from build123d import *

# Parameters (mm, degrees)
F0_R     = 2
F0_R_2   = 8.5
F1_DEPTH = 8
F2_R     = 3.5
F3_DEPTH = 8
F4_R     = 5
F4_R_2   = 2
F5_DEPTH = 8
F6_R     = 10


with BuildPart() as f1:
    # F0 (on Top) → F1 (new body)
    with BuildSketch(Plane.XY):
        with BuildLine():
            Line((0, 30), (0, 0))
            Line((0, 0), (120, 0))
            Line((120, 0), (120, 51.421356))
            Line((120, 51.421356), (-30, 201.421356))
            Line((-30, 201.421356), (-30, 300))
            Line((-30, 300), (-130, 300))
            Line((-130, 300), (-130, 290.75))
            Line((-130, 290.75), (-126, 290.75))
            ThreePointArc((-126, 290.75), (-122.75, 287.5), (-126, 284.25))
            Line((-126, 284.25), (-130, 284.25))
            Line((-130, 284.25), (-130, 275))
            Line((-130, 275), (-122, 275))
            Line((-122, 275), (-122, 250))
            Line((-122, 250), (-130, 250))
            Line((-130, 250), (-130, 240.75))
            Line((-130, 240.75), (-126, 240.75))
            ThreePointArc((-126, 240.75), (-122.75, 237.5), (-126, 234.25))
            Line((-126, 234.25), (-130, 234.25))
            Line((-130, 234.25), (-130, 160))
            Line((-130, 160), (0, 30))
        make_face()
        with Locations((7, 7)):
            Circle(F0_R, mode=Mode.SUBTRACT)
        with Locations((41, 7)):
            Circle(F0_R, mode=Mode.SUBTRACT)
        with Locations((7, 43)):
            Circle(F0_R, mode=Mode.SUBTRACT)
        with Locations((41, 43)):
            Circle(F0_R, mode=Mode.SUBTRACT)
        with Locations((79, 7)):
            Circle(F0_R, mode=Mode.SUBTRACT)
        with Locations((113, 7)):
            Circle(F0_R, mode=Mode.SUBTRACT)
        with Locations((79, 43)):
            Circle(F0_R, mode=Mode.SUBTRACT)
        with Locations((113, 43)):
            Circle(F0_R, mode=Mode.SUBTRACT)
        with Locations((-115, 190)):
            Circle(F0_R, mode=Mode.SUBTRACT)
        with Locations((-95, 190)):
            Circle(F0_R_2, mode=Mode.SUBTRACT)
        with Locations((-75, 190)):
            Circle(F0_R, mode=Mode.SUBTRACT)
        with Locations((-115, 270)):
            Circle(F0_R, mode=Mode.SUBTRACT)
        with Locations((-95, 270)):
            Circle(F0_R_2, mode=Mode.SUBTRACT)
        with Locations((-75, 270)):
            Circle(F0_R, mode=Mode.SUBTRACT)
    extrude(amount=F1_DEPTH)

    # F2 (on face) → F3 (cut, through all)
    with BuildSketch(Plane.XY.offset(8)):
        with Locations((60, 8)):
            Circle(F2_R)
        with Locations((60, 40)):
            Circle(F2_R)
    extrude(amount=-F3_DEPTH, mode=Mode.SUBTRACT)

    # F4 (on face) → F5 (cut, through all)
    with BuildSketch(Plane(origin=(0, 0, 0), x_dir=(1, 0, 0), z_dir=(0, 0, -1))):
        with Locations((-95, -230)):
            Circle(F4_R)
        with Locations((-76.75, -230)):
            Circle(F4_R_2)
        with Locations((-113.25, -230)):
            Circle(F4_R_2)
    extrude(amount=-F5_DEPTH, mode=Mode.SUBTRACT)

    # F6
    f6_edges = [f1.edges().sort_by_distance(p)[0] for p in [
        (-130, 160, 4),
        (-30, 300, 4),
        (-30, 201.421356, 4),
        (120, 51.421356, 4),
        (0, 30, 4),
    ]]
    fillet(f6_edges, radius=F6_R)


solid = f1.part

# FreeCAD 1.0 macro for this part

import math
import FreeCAD as App
import Part
import Sketcher
Q = App.Units.Quantity


def edges_at(feature, points):
    """Names of the edges that pass closest to the given points."""
    edges = feature.Shape.Edges
    near = lambda p: min(range(len(edges)), key=lambda i: edges[i].distToShape(Part.Vertex(*p))[0])
    return sorted({f"Edge{near(p) + 1}" for p in points})

doc = App.newDocument("Part")
params = doc.addObject("Spreadsheet::Sheet", "Params")
for row, (alias, value) in enumerate([
    ("sketch1_diameter", "4 mm"),
    ("sketch1_diameter2", "17 mm"),
    ("sketch1_width", "120 mm"),
    ("sketch1_width2", "100 mm"),
    ("sketch1_width3", "4 mm"),
    ("pad1_length", "8 mm"),
    ("sketch2_diameter", "7 mm"),
    ("sketch3_diameter", "10 mm"),
    ("sketch3_diameter2", "4 mm"),
    ("fillet_radius", "10 mm"),
], start=1):
    params.set(f"A{row}", alias)
    params.set(f"B{row}", "=" + value)
    params.setAlias(f"B{row}", alias)

body = doc.addObject("PartDesign::Body", "Body")

# Sketch on XY plane
sketch1 = body.newObject("Sketcher::SketchObject", "Sketch")
sketch1.AttachmentSupport = (doc.getObject("XY_Plane"), [""])
sketch1.MapMode = "FlatFace"
sketch1.addGeometry([
    Part.LineSegment(App.Vector(0, 30, 0), App.Vector(0, 0, 0)),  # 0
    Part.LineSegment(App.Vector(0, 0, 0), App.Vector(120, 0, 0)),  # 1
    Part.LineSegment(App.Vector(120, 0, 0), App.Vector(120, 51.4, 0)),  # 2
    Part.LineSegment(App.Vector(120, 51.4, 0), App.Vector(-30, 201.4, 0)),  # 3
    Part.LineSegment(App.Vector(-30, 201.4, 0), App.Vector(-30, 300, 0)),  # 4
    Part.LineSegment(App.Vector(-30, 300, 0), App.Vector(-130, 300, 0)),  # 5
    Part.LineSegment(App.Vector(-130, 300, 0), App.Vector(-130, 290.8, 0)),  # 6
    Part.LineSegment(App.Vector(-130, 290.8, 0), App.Vector(-126, 290.8, 0)),  # 7
    Part.ArcOfCircle(Part.Circle(App.Vector(-126, 287.5, 0), App.Vector(0, 0, 1), 3.2), math.radians(-90), math.radians(90)),  # 8
    Part.LineSegment(App.Vector(-126, 284.2, 0), App.Vector(-130, 284.2, 0)),  # 9
    Part.LineSegment(App.Vector(-130, 284.2, 0), App.Vector(-130, 275, 0)),  # 10
    Part.LineSegment(App.Vector(-130, 275, 0), App.Vector(-122, 275, 0)),  # 11
    Part.LineSegment(App.Vector(-122, 275, 0), App.Vector(-122, 250, 0)),  # 12
    Part.LineSegment(App.Vector(-122, 250, 0), App.Vector(-130, 250, 0)),  # 13
    Part.LineSegment(App.Vector(-130, 250, 0), App.Vector(-130, 240.8, 0)),  # 14
    Part.LineSegment(App.Vector(-130, 240.8, 0), App.Vector(-126, 240.8, 0)),  # 15
    Part.ArcOfCircle(Part.Circle(App.Vector(-126, 237.5, 0), App.Vector(0, 0, 1), 3.2), math.radians(-90), math.radians(90)),  # 16
    Part.LineSegment(App.Vector(-126, 234.2, 0), App.Vector(-130, 234.2, 0)),  # 17
    Part.LineSegment(App.Vector(-130, 234.2, 0), App.Vector(-130, 160, 0)),  # 18
    Part.LineSegment(App.Vector(-130, 160, 0), App.Vector(0, 30, 0)),  # 19
    Part.Circle(App.Vector(7, 7, 0), App.Vector(0, 0, 1), 2),  # 20
    Part.Circle(App.Vector(41, 7, 0), App.Vector(0, 0, 1), 2),  # 21
    Part.Circle(App.Vector(7, 43, 0), App.Vector(0, 0, 1), 2),  # 22
    Part.Circle(App.Vector(41, 43, 0), App.Vector(0, 0, 1), 2),  # 23
    Part.Circle(App.Vector(79, 7, 0), App.Vector(0, 0, 1), 2),  # 24
    Part.Circle(App.Vector(113, 7, 0), App.Vector(0, 0, 1), 2),  # 25
    Part.Circle(App.Vector(79, 43, 0), App.Vector(0, 0, 1), 2),  # 26
    Part.Circle(App.Vector(113, 43, 0), App.Vector(0, 0, 1), 2),  # 27
    Part.Circle(App.Vector(-115, 190, 0), App.Vector(0, 0, 1), 2),  # 28
    Part.Circle(App.Vector(-95, 190, 0), App.Vector(0, 0, 1), 8.5),  # 29
    Part.Circle(App.Vector(-75, 190, 0), App.Vector(0, 0, 1), 2),  # 30
    Part.Circle(App.Vector(-115, 270, 0), App.Vector(0, 0, 1), 2),  # 31
    Part.Circle(App.Vector(-95, 270, 0), App.Vector(0, 0, 1), 8.5),  # 32
    Part.Circle(App.Vector(-75, 270, 0), App.Vector(0, 0, 1), 2),  # 33
], False)
sketch1.addConstraint([
    Sketcher.Constraint("Coincident", 0, 2, 1, 1),
    Sketcher.Constraint("Coincident", 1, 2, 2, 1),
    Sketcher.Constraint("Coincident", 2, 2, 3, 1),
    Sketcher.Constraint("Coincident", 3, 2, 4, 1),
    Sketcher.Constraint("Coincident", 4, 2, 5, 1),
    Sketcher.Constraint("Coincident", 5, 2, 6, 1),
    Sketcher.Constraint("Coincident", 6, 2, 7, 1),
    Sketcher.Constraint("Tangent", 7, 2, 8, 2),
    Sketcher.Constraint("Tangent", 8, 1, 9, 1),
    Sketcher.Constraint("Coincident", 9, 2, 10, 1),
    Sketcher.Constraint("Coincident", 10, 2, 11, 1),
    Sketcher.Constraint("Coincident", 11, 2, 12, 1),
    Sketcher.Constraint("Coincident", 12, 2, 13, 1),
    Sketcher.Constraint("Coincident", 13, 2, 14, 1),
    Sketcher.Constraint("Coincident", 14, 2, 15, 1),
    Sketcher.Constraint("Tangent", 15, 2, 16, 2),
    Sketcher.Constraint("Tangent", 16, 1, 17, 1),
    Sketcher.Constraint("Coincident", 17, 2, 18, 1),
    Sketcher.Constraint("Coincident", 18, 2, 19, 1),
    Sketcher.Constraint("Coincident", 19, 2, 0, 1),
    Sketcher.Constraint("Vertical", 0),
    Sketcher.Constraint("Horizontal", 1),
    Sketcher.Constraint("Vertical", 2),
    Sketcher.Constraint("Vertical", 4),
    Sketcher.Constraint("Horizontal", 5),
    Sketcher.Constraint("Vertical", 6),
    Sketcher.Constraint("Horizontal", 7),
    Sketcher.Constraint("Horizontal", 9),
    Sketcher.Constraint("Vertical", 10),
    Sketcher.Constraint("Horizontal", 11),
    Sketcher.Constraint("Vertical", 12),
    Sketcher.Constraint("Horizontal", 13),
    Sketcher.Constraint("Vertical", 14),
    Sketcher.Constraint("Horizontal", 15),
    Sketcher.Constraint("Horizontal", 17),
    Sketcher.Constraint("Vertical", 18),
    Sketcher.Constraint("Coincident", 0, 2, -1, 1),
    Sketcher.Constraint("Equal", 8, 16),
    Sketcher.Constraint("Equal", 20, 21),
    Sketcher.Constraint("Equal", 21, 22),
    Sketcher.Constraint("Equal", 22, 23),
    Sketcher.Constraint("Equal", 23, 24),
    Sketcher.Constraint("Equal", 24, 25),
    Sketcher.Constraint("Equal", 25, 26),
    Sketcher.Constraint("Equal", 26, 27),
    Sketcher.Constraint("Equal", 27, 28),
    Sketcher.Constraint("Equal", 28, 30),
    Sketcher.Constraint("Equal", 30, 31),
    Sketcher.Constraint("Equal", 29, 32),
    Sketcher.Constraint("Equal", 31, 33),
    Sketcher.Constraint("Parallel", 3, 19),
    Sketcher.Constraint("Horizontal", 20, 3, 21, 3),
    Sketcher.Constraint("Horizontal", 22, 3, 23, 3),
    Sketcher.Constraint("Horizontal", 21, 3, 24, 3),
    Sketcher.Constraint("Horizontal", 24, 3, 25, 3),
    Sketcher.Constraint("Horizontal", 23, 3, 26, 3),
    Sketcher.Constraint("Horizontal", 26, 3, 27, 3),
    Sketcher.Constraint("Horizontal", 28, 3, 29, 3),
    Sketcher.Constraint("Horizontal", 29, 3, 30, 3),
    Sketcher.Constraint("Horizontal", 31, 3, 32, 3),
    Sketcher.Constraint("Horizontal", 32, 3, 33, 3),
    Sketcher.Constraint("Vertical", 8, 3, 16, 3),
    Sketcher.Constraint("Vertical", 20, 3, 22, 3),
    Sketcher.Constraint("Vertical", 21, 3, 23, 3),
    Sketcher.Constraint("Vertical", 24, 3, 26, 3),
    Sketcher.Constraint("Vertical", 25, 3, 27, 3),
    Sketcher.Constraint("Vertical", 28, 3, 31, 3),
    Sketcher.Constraint("Vertical", 29, 3, 32, 3),
    Sketcher.Constraint("Vertical", 30, 3, 33, 3),
    Sketcher.Constraint("Vertical", 6, 2, 9, 2),
    Sketcher.Constraint("Vertical", 10, 2, 13, 2),
    Sketcher.Constraint("Vertical", 14, 2, 17, 2),
    Sketcher.Constraint("Equal", 6, 10),
    Sketcher.Constraint("Equal", 10, 14),
    Sketcher.Constraint("Diameter", 20, 4.0),
    Sketcher.Constraint("Diameter", 29, 17.0),
    Sketcher.Constraint("DistanceX", 1, 1, 1, 2, 120.0),
    Sketcher.Constraint("DistanceX", 5, 2, 5, 1, 100.0),
    Sketcher.Constraint("DistanceX", 7, 1, 7, 2, 4.0),
    Sketcher.Constraint("DistanceX", 11, 1, 11, 2, 8.0),
    Sketcher.Constraint("DistanceY", 0, 2, 0, 1, 30.0),
    Sketcher.Constraint("DistanceY", 12, 2, 12, 1, 25.0),
    Sketcher.Constraint("Angle", 3, Q("135 deg")),
    Sketcher.Constraint("Radius", 8, 3.25),
    Sketcher.Constraint("DistanceX", 8, 3, -1, 1, 126.0),
    Sketcher.Constraint("DistanceX", -1, 1, 20, 3, 7.0),
    Sketcher.Constraint("DistanceY", -1, 1, 20, 3, 7.0),
    Sketcher.Constraint("DistanceX", -1, 1, 21, 3, 41.0),
    Sketcher.Constraint("DistanceY", -1, 1, 22, 3, 43.0),
    Sketcher.Constraint("DistanceX", -1, 1, 24, 3, 79.0),
    Sketcher.Constraint("DistanceX", -1, 1, 25, 3, 113.0),
    Sketcher.Constraint("DistanceX", 28, 3, -1, 1, 115.0),
    Sketcher.Constraint("DistanceY", -1, 1, 28, 3, 190.0),
    Sketcher.Constraint("DistanceX", 29, 3, -1, 1, 95.0),
    Sketcher.Constraint("DistanceX", 30, 3, -1, 1, 75.0),
    Sketcher.Constraint("DistanceY", -1, 1, 31, 3, 270.0),
    Sketcher.Constraint("DistanceY", -1, 1, 4, 2, 300.0),
    Sketcher.Constraint("DistanceY", -1, 1, 10, 2, 275.0),
    Sketcher.Constraint("DistanceY", 2, 1, 2, 2, 51.421356),
])
sketch1.setExpression("Constraints[74]", "Params.sketch1_diameter")
sketch1.setExpression("Constraints[75]", "Params.sketch1_diameter2")
sketch1.setExpression("Constraints[76]", "Params.sketch1_width")
sketch1.setExpression("Constraints[77]", "Params.sketch1_width2")
sketch1.setExpression("Constraints[78]", "Params.sketch1_width3")
pad1 = body.newObject("PartDesign::Pad", "Pad")
pad1.Profile = sketch1
pad1.setExpression("Length", "Params.pad1_length")

# Sketch on XY plane
sketch2 = body.newObject("Sketcher::SketchObject", "Sketch001")
sketch2.AttachmentSupport = (doc.getObject("XY_Plane"), [""])
sketch2.MapMode = "FlatFace"
sketch2.AttachmentOffset = App.Placement(App.Vector(0, 0, 8), App.Rotation())
sketch2.addGeometry([
    Part.Circle(App.Vector(60, 8, 0), App.Vector(0, 0, 1), 3.5),
    Part.Circle(App.Vector(60, 40, 0), App.Vector(0, 0, 1), 3.5),
], False)
sketch2.addConstraint([
    Sketcher.Constraint("Equal", 0, 1),
    Sketcher.Constraint("Vertical", 0, 3, 1, 3),
    Sketcher.Constraint("Diameter", 0, 7.0),
    Sketcher.Constraint("DistanceX", -1, 1, 0, 3, 60.0),
    Sketcher.Constraint("DistanceY", -1, 1, 0, 3, 8.0),
    Sketcher.Constraint("DistanceY", -1, 1, 1, 3, 40.0),
])
sketch2.setExpression("Constraints[2]", "Params.sketch2_diameter")
pocket1 = body.newObject("PartDesign::Pocket", "Pocket")
pocket1.Profile = sketch2
pocket1.Type = "ThroughAll"

# Sketch on XY plane
sketch3 = body.newObject("Sketcher::SketchObject", "Sketch002")
sketch3.AttachmentSupport = (doc.getObject("XY_Plane"), [""])
sketch3.MapMode = "FlatFace"
sketch3.addGeometry([
    Part.Circle(App.Vector(-95, 230, 0), App.Vector(0, 0, 1), 5),
    Part.Circle(App.Vector(-76.8, 230, 0), App.Vector(0, 0, 1), 2),
    Part.Circle(App.Vector(-113.2, 230, 0), App.Vector(0, 0, 1), 2),
], False)
sketch3.addConstraint([
    Sketcher.Constraint("Equal", 1, 2),
    Sketcher.Constraint("Horizontal", 0, 3, 1, 3),
    Sketcher.Constraint("Horizontal", 1, 3, 2, 3),
    Sketcher.Constraint("Diameter", 0, 10.0),
    Sketcher.Constraint("Diameter", 1, 4.0),
    Sketcher.Constraint("DistanceX", 0, 3, -1, 1, 95.0),
    Sketcher.Constraint("DistanceY", -1, 1, 0, 3, 230.0),
    Sketcher.Constraint("DistanceX", 2, 3, 1, 3, 36.5),
    Sketcher.Constraint("DistanceX", 1, 3, -1, 1, 76.75),
])
sketch3.setExpression("Constraints[3]", "Params.sketch3_diameter")
sketch3.setExpression("Constraints[4]", "Params.sketch3_diameter2")
pocket2 = body.newObject("PartDesign::Pocket", "Pocket001")
pocket2.Profile = sketch3
pocket2.Type = "ThroughAll"
pocket2.Reversed = True
doc.recompute()

fillet = body.newObject("PartDesign::Fillet", "Fillet")
fillet.Base = (pocket2, edges_at(pocket2, [
    (-130, 160, 4),
    (-30, 300, 4),
    (-30, 201.421, 4),
    (120, 51.421, 4),
    (0, 30, 4),
]))
fillet.setExpression("Radius", "Params.fillet_radius")

doc.recompute()
